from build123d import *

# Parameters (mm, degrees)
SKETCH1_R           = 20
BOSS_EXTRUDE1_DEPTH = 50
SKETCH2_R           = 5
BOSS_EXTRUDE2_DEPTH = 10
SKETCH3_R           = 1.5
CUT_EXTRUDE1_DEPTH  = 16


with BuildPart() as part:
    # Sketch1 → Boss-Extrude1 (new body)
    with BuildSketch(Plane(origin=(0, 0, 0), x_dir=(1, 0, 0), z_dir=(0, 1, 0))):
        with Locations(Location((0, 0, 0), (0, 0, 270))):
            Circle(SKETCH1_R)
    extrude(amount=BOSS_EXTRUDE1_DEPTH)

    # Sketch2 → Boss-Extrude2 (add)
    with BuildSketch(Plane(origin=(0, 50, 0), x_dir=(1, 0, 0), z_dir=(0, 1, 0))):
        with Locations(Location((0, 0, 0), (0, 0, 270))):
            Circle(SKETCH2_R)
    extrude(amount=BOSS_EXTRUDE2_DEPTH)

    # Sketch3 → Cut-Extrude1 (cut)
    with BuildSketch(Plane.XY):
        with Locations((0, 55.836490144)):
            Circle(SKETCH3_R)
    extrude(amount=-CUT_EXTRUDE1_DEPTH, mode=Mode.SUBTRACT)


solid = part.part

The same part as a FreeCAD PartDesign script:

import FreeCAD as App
import Part
import Sketcher
Q = App.Units.Quantity

doc = App.newDocument("Part")
params = doc.addObject("Spreadsheet::Sheet", "Params")
for row, (alias, value) in enumerate([
    ("sketch1_diameter", "40 mm"),
    ("pad1_length", "50 mm"),
    ("sketch2_diameter", "10 mm"),
    ("pad2_length", "10 mm"),
    ("sketch3_diameter", "3 mm"),
    ("pocket1_length", "16 mm"),
], start=1):
    params.set(f"A{row}", alias)
    params.set(f"B{row}", "=" + value)
    params.setAlias(f"B{row}", alias)

body = doc.addObject("PartDesign::Body", "Body")

# Sketch on XZ plane
sketch1 = body.newObject("Sketcher::SketchObject", "Sketch")
sketch1.AttachmentSupport = (doc.getObject("XZ_Plane"), [""])
sketch1.MapMode = "FlatFace"
sketch1.addGeometry(Part.Circle(App.Vector(0, 0, 0), App.Vector(0, 0, 1), 20), False)
sketch1.addConstraint([
    Sketcher.Constraint("Coincident", 0, 3, -1, 1),
    Sketcher.Constraint("Diameter", 0, Q("40 mm")),
])
sketch1.setExpression("Constraints[1]", "Params.sketch1_diameter")
pad1 = body.newObject("PartDesign::Pad", "Pad")
pad1.Profile = sketch1
pad1.setExpression("Length", "Params.pad1_length")
pad1.Reversed = True

# Sketch on XZ plane
sketch2 = body.newObject("Sketcher::SketchObject", "Sketch001")
sketch2.AttachmentSupport = (doc.getObject("XZ_Plane"), [""])
sketch2.MapMode = "FlatFace"
sketch2.AttachmentOffset = App.Placement(App.Vector(0, 0, -50), App.Rotation())
sketch2.addGeometry(Part.Circle(App.Vector(0, 0, 0), App.Vector(0, 0, 1), 5), False)
sketch2.addConstraint([
    Sketcher.Constraint("Coincident", 0, 3, -1, 1),
    Sketcher.Constraint("Diameter", 0, Q("10 mm")),
])
sketch2.setExpression("Constraints[1]", "Params.sketch2_diameter")
pad2 = body.newObject("PartDesign::Pad", "Pad001")
pad2.Profile = sketch2
pad2.setExpression("Length", "Params.pad2_length")
pad2.Reversed = True

# Sketch on XY plane
sketch3 = body.newObject("Sketcher::SketchObject", "Sketch002")
sketch3.AttachmentSupport = (doc.getObject("XY_Plane"), [""])
sketch3.MapMode = "FlatFace"
sketch3.addGeometry(Part.Circle(App.Vector(0, 55.8, 0), App.Vector(0, 0, 1), 1.5), False)
sketch3.addConstraint([
    Sketcher.Constraint("PointOnObject", 0, 3, -2),
    Sketcher.Constraint("Diameter", 0, Q("3 mm")),
    Sketcher.Constraint("DistanceY", -1, 1, 0, 3, Q("55.83649 mm")),
])
sketch3.setExpression("Constraints[1]", "Params.sketch3_diameter")
pocket1 = body.newObject("PartDesign::Pocket", "Pocket")
pocket1.Profile = sketch3
pocket1.setExpression("Length", "Params.pocket1_length")

doc.recompute()
